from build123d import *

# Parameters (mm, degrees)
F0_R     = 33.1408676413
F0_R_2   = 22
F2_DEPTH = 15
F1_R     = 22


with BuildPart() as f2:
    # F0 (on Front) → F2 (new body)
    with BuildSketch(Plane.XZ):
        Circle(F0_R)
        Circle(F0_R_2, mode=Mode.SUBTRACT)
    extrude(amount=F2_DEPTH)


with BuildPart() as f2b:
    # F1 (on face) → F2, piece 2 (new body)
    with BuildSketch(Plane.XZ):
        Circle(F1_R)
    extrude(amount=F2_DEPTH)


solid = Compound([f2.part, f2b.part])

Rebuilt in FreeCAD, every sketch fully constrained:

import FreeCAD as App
import Part
import Sketcher
Q = App.Units.Quantity

doc = App.newDocument("Part")
body = doc.addObject("PartDesign::Body", "Body")

# Sketch on XZ plane
sketch1 = doc.addObject("Sketcher::SketchObject", "Sketch")
body.addObject(sketch1)
sketch1.AttachmentSupport = (doc.XZ_Plane, [""])
sketch1.MapMode = "FlatFace"
sketch1.addGeometry(Part.Circle(App.Vector(0, 0, 0), App.Vector(0, 0, 1), 33.140868), False)
sketch1.addGeometry(Part.Circle(App.Vector(0, 0, 0), App.Vector(0, 0, 1), 22), False)
sketch1.addConstraint(Sketcher.Constraint("Coincident", 0, 3, -1, 1))
sketch1.addConstraint(Sketcher.Constraint("Coincident", 1, 3, -1, 1))
sketch1.addConstraint(Sketcher.Constraint("Diameter", 1, Q("44 mm")))
sketch1.addConstraint(Sketcher.Constraint("Diameter", 0, Q("66.281735 mm")))
pad1 = doc.addObject("PartDesign::Pad", "Pad")
body.addObject(pad1)
pad1.Profile = sketch1
pad1.Length = 15
body2 = doc.addObject("PartDesign::Body", "Body001")

# Sketch on XZ plane
sketch2 = doc.addObject("Sketcher::SketchObject", "Sketch001")
body2.addObject(sketch2)
sketch2.AttachmentSupport = (doc.getObject("XZ_Plane001"), [""])
sketch2.MapMode = "FlatFace"
sketch2.addGeometry(Part.Circle(App.Vector(0, 0, 0), App.Vector(0, 0, 1), 22), False)
sketch2.addConstraint(Sketcher.Constraint("Coincident", 0, 3, -1, 1))
sketch2.addConstraint(Sketcher.Constraint("Diameter", 0, Q("44 mm")))
pad2 = doc.addObject("PartDesign::Pad", "Pad001")
body2.addObject(pad2)
pad2.Profile = sketch2
pad2.Length = 15

doc.recompute()
